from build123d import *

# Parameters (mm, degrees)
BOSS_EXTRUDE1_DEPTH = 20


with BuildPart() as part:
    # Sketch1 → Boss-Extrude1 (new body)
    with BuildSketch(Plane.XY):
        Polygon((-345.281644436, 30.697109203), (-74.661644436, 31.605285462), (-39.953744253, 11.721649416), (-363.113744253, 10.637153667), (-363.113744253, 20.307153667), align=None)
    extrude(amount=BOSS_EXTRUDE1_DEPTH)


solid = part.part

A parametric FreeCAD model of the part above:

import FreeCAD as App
import Part
import Sketcher
from FreeCAD import Vector


def add_polygon(sketch, points):
    """Adds a closed chain of lines whose ends are joined by coincident constraints."""
    first, n = sketch.GeometryCount, len(points)
    for a, b in zip(points, points[1:] + points[:1]):
        sketch.addGeometry(Part.LineSegment(App.Vector(*a, 0), App.Vector(*b, 0)), False)
    for i in range(n):
        sketch.addConstraint(Sketcher.Constraint("Coincident", first + i, 2, first + (i + 1) % n, 1))

doc = App.newDocument("Part")
body = doc.addObject("PartDesign::Body", "Body")

# Sketch on XY plane
sketch1 = body.newObject("Sketcher::SketchObject", "Sketch")
sketch1.AttachmentSupport = (doc.getObject("XY_Plane"), [""])
sketch1.MapMode = "FlatFace"
add_polygon(sketch1, [(-75, 32), (-345, 31), (-363, 20), (-363, 11), (-40, 12)])  # lines 0-4
sketch1.addConstraint(Sketcher.Constraint("Vertical", 2))
sketch1.addConstraint(Sketcher.Constraint("Parallel", 0, 3))
sketch1.addConstraint(Sketcher.Constraint("DistanceY", 2, 2, 2, 1, 9.67))
sketch1.addConstraint(Sketcher.Constraint("DistanceX", 2, 2, 3, 2, 323.16))
sketch1.addConstraint(Sketcher.Constraint("DistanceX", 0, 2, 4, 2, 270.62))
sketch1.addConstraint(Sketcher.Constraint("DistanceX", 1, 2, 0, 2, 17.8321))
sketch1.addConstraint(Sketcher.Constraint("Distance", 1, 20.638192))
sketch1.addConstraint(Sketcher.Constraint("DistanceY", -1, 1, 0, 2, 30.697109))
sketch1.addConstraint(Sketcher.Constraint("DistanceY", -1, 1, 3, 2, 11.721649))
sketch1.addConstraint(Sketcher.Constraint("DistanceX", 0, 2, -1, 1, 345.281644))
pad1 = body.newObject("PartDesign::Pad", "Pad")
pad1.Profile = sketch1
pad1.Length = 20

doc.recompute()
